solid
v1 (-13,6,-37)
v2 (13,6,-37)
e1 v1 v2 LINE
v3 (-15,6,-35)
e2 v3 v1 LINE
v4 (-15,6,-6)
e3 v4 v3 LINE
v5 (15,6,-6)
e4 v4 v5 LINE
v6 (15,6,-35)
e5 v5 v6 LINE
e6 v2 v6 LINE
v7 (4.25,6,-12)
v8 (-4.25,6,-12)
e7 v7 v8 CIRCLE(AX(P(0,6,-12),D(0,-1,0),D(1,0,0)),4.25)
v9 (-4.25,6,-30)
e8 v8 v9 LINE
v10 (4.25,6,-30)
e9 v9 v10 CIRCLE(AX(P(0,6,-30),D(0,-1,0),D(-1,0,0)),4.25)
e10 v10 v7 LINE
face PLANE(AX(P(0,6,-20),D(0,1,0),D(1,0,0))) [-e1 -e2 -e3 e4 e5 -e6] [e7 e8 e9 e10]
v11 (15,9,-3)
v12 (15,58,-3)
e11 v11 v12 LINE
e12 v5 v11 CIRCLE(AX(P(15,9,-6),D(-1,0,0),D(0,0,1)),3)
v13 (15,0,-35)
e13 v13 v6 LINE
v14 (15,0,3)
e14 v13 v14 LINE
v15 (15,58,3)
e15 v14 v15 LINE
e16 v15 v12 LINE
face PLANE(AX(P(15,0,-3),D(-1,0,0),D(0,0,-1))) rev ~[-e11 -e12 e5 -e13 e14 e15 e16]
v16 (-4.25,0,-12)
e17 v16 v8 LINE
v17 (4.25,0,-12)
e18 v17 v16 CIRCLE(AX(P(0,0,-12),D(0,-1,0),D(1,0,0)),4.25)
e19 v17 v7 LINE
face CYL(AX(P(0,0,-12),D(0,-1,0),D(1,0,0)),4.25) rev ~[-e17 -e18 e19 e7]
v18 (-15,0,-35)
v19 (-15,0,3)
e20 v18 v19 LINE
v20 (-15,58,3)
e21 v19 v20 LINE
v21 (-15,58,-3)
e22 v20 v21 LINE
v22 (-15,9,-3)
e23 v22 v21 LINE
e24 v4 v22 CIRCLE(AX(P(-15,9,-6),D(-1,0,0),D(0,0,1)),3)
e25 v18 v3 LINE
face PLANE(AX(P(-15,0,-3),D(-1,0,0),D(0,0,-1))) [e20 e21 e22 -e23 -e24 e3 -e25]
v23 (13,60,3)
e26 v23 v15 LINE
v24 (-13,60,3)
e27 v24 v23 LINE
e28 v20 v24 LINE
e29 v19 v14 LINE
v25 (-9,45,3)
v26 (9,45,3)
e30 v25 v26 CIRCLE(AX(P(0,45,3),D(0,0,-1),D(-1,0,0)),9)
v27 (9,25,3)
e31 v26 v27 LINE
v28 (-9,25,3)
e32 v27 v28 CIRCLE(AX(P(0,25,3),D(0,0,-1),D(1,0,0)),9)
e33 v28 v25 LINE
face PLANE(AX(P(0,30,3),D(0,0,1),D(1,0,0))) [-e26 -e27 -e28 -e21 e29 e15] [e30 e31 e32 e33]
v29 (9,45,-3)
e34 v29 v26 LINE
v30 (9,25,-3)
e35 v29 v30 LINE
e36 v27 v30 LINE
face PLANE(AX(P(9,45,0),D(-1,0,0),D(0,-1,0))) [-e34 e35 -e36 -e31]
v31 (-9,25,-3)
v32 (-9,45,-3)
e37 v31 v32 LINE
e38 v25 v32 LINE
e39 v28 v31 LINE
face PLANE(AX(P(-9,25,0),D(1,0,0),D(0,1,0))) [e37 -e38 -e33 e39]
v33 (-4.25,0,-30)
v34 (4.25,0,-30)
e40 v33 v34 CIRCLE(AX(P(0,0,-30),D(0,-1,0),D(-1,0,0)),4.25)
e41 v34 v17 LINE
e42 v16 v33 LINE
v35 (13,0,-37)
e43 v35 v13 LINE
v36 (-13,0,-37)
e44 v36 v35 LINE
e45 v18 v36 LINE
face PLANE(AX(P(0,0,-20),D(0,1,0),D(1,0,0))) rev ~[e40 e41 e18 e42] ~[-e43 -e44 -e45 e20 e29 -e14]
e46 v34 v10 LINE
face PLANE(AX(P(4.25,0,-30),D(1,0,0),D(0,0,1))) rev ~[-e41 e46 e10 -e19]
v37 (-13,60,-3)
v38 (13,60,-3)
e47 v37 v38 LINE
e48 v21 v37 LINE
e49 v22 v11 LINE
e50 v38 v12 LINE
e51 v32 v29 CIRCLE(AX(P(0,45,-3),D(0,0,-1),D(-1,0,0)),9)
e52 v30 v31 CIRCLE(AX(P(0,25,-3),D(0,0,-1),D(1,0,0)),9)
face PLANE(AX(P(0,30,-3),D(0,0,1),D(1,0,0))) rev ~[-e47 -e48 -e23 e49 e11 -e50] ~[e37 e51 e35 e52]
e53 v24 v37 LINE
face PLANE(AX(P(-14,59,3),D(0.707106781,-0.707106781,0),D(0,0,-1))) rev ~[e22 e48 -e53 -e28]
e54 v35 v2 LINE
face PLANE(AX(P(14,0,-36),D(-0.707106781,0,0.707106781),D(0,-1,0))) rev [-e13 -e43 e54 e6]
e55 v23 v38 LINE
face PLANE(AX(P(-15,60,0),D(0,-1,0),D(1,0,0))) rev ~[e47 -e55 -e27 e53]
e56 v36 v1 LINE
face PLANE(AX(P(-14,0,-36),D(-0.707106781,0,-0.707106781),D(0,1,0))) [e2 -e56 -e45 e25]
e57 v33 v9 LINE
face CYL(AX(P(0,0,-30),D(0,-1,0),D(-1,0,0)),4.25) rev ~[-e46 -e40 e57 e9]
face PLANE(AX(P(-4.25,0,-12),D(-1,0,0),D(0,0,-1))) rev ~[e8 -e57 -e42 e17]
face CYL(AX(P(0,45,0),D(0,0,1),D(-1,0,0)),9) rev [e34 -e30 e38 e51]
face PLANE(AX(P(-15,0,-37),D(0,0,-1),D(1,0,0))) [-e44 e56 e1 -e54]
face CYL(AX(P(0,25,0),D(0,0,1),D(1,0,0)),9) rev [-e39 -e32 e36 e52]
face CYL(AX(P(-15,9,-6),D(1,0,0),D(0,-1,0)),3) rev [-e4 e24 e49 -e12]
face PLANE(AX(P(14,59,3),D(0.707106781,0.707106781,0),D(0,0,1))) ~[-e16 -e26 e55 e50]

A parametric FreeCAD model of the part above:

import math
import FreeCAD as App
import Part
import Sketcher

V = App.Vector


def edges_at(feature, points):
    """Names of the edges that pass closest to the given points."""
    edges = feature.Shape.Edges
    near = lambda p: min(range(len(edges)), key=lambda i: edges[i].distToShape(Part.Vertex(*p))[0])
    return sorted({f"Edge{near(p) + 1}" for p in points})


def add_polygon(sketch, points):
    """Adds a closed chain of lines whose ends are joined by coincident constraints."""
    first, n = sketch.GeometryCount, len(points)
    for a, b in zip(points, points[1:] + points[:1]):
        sketch.addGeometry(Part.LineSegment(App.Vector(*a, 0), App.Vector(*b, 0)), False)
    for i in range(n):
        sketch.addConstraint(Sketcher.Constraint("Coincident", first + i, 2, first + (i + 1) % n, 1))

doc = App.newDocument("Part")
body = doc.addObject("PartDesign::Body", "Body")

# Sketch on XY plane
sketch1 = body.newObject("Sketcher::SketchObject", "Sketch")
sketch1.AttachmentSupport = (doc.getObject("XY_Plane"), [""])
sketch1.MapMode = "FlatFace"
add_polygon(sketch1, [(-15, 60), (-15, 0), (15, 0), (15, 60)])  # lines 0-3
sketch1.addGeometry(Part.ArcOfCircle(Part.Circle(V(0, 45, 0), V(0, 0, 1), 9), math.radians(0), math.radians(180)), False)  # 4
sketch1.addGeometry(Part.LineSegment(V(9, 45, 0), V(9, 25, 0)), False)  # 5
sketch1.addGeometry(Part.ArcOfCircle(Part.Circle(V(0, 25, 0), V(0, 0, 1), 9), math.radians(180), math.radians(360)), False)  # 6
sketch1.addGeometry(Part.LineSegment(V(-9, 25, 0), V(-9, 45, 0)), False)  # 7
sketch1.addConstraint(Sketcher.Constraint("Tangent", 4, 1, 5, 1))
sketch1.addConstraint(Sketcher.Constraint("Tangent", 5, 2, 6, 2))
sketch1.addConstraint(Sketcher.Constraint("Tangent", 6, 1, 7, 1))
sketch1.addConstraint(Sketcher.Constraint("Tangent", 7, 2, 4, 2))
sketch1.addConstraint(Sketcher.Constraint("Vertical", 0))
sketch1.addConstraint(Sketcher.Constraint("Horizontal", 1))
sketch1.addConstraint(Sketcher.Constraint("Vertical", 2))
sketch1.addConstraint(Sketcher.Constraint("Horizontal", 3))
sketch1.addConstraint(Sketcher.Constraint("Vertical", 5))
sketch1.addConstraint(Sketcher.Constraint("Vertical", 7))
sketch1.addConstraint(Sketcher.Constraint("Symmetric", 0, 2, 1, 2, -1, 1))
sketch1.addConstraint(Sketcher.Constraint("PointOnObject", 4, 3, -2))
sketch1.addConstraint(Sketcher.Constraint("Radius", 4, 9.0))
sketch1.addConstraint(Sketcher.Constraint("DistanceX", 1, 1, 1, 2, 30.0))
sketch1.addConstraint(Sketcher.Constraint("DistanceY", 0, 2, 0, 1, 60.0))
sketch1.addConstraint(Sketcher.Constraint("DistanceY", 5, 2, 5, 1, 20.0))
sketch1.addConstraint(Sketcher.Constraint("DistanceY", -1, 1, 4, 3, 45.0))
pad1 = body.newObject("PartDesign::Pad", "Pad")
pad1.Profile = sketch1
pad1.Length = 6
pad1.Midplane = True

# Sketch on XZ plane
sketch2 = body.newObject("Sketcher::SketchObject", "Sketch001")
sketch2.AttachmentSupport = (doc.getObject("XZ_Plane"), [""])
sketch2.MapMode = "FlatFace"
add_polygon(sketch2, [(-15, -37), (-15, -3), (15, -3), (15, -37)])  # lines 0-3
sketch2.addGeometry(Part.ArcOfCircle(Part.Circle(V(0, -30, 0), V(0, 0, 1), 4.2), math.radians(180), math.radians(360)), False)  # 4
sketch2.addGeometry(Part.LineSegment(V(4.2, -30, 0), V(4.2, -12, 0)), False)  # 5
sketch2.addGeometry(Part.ArcOfCircle(Part.Circle(V(0, -12, 0), V(0, 0, 1), 4.2), math.radians(0), math.radians(180)), False)  # 6
sketch2.addGeometry(Part.LineSegment(V(-4.2, -12, 0), V(-4.2, -30, 0)), False)  # 7
sketch2.addConstraint(Sketcher.Constraint("Tangent", 4, 2, 5, 1))
sketch2.addConstraint(Sketcher.Constraint("Tangent", 5, 2, 6, 1))
sketch2.addConstraint(Sketcher.Constraint("Tangent", 6, 2, 7, 1))
sketch2.addConstraint(Sketcher.Constraint("Tangent", 7, 2, 4, 1))
sketch2.addConstraint(Sketcher.Constraint("Vertical", 0))
sketch2.addConstraint(Sketcher.Constraint("Horizontal", 1))
sketch2.addConstraint(Sketcher.Constraint("Vertical", 2))
sketch2.addConstraint(Sketcher.Constraint("Horizontal", 3))
sketch2.addConstraint(Sketcher.Constraint("Vertical", 5))
sketch2.addConstraint(Sketcher.Constraint("Vertical", 7))
sketch2.addConstraint(Sketcher.Constraint("PointOnObject", 4, 3, -2))
sketch2.addConstraint(Sketcher.Constraint("DistanceX", 1, 1, 1, 2, 30.0))
sketch2.addConstraint(Sketcher.Constraint("DistanceY", 0, 1, 0, 2, 34.0))
sketch2.addConstraint(Sketcher.Constraint("DistanceY", 5, 1, 5, 2, 18.0))
sketch2.addConstraint(Sketcher.Constraint("Radius", 4, 4.25))
sketch2.addConstraint(Sketcher.Constraint("DistanceY", 4, 3, -1, 1, 30.0))
sketch2.addConstraint(Sketcher.Constraint("DistanceX", 0, 2, -1, 1, 15.0))
sketch2.addConstraint(Sketcher.Constraint("DistanceY", 0, 2, -1, 1, 3.0))
pad2 = body.newObject("PartDesign::Pad", "Pad001")
pad2.Profile = sketch2
pad2.Length = 6
pad2.Reversed = True
doc.recompute()

fillet = body.newObject("PartDesign::Fillet", "Fillet")
fillet.Base = (pad2, edges_at(pad2, [(0, 6, -3)]))
fillet.Radius = 3
doc.recompute()

chamfer = body.newObject("PartDesign::Chamfer", "Chamfer")
chamfer.Base = (fillet, edges_at(fillet, [
    (-15, 3, -37),
    (15, 3, -37),
    (-15, 60, 0),
    (15, 60, 0),
]))
chamfer.Size = 2

doc.recompute()
